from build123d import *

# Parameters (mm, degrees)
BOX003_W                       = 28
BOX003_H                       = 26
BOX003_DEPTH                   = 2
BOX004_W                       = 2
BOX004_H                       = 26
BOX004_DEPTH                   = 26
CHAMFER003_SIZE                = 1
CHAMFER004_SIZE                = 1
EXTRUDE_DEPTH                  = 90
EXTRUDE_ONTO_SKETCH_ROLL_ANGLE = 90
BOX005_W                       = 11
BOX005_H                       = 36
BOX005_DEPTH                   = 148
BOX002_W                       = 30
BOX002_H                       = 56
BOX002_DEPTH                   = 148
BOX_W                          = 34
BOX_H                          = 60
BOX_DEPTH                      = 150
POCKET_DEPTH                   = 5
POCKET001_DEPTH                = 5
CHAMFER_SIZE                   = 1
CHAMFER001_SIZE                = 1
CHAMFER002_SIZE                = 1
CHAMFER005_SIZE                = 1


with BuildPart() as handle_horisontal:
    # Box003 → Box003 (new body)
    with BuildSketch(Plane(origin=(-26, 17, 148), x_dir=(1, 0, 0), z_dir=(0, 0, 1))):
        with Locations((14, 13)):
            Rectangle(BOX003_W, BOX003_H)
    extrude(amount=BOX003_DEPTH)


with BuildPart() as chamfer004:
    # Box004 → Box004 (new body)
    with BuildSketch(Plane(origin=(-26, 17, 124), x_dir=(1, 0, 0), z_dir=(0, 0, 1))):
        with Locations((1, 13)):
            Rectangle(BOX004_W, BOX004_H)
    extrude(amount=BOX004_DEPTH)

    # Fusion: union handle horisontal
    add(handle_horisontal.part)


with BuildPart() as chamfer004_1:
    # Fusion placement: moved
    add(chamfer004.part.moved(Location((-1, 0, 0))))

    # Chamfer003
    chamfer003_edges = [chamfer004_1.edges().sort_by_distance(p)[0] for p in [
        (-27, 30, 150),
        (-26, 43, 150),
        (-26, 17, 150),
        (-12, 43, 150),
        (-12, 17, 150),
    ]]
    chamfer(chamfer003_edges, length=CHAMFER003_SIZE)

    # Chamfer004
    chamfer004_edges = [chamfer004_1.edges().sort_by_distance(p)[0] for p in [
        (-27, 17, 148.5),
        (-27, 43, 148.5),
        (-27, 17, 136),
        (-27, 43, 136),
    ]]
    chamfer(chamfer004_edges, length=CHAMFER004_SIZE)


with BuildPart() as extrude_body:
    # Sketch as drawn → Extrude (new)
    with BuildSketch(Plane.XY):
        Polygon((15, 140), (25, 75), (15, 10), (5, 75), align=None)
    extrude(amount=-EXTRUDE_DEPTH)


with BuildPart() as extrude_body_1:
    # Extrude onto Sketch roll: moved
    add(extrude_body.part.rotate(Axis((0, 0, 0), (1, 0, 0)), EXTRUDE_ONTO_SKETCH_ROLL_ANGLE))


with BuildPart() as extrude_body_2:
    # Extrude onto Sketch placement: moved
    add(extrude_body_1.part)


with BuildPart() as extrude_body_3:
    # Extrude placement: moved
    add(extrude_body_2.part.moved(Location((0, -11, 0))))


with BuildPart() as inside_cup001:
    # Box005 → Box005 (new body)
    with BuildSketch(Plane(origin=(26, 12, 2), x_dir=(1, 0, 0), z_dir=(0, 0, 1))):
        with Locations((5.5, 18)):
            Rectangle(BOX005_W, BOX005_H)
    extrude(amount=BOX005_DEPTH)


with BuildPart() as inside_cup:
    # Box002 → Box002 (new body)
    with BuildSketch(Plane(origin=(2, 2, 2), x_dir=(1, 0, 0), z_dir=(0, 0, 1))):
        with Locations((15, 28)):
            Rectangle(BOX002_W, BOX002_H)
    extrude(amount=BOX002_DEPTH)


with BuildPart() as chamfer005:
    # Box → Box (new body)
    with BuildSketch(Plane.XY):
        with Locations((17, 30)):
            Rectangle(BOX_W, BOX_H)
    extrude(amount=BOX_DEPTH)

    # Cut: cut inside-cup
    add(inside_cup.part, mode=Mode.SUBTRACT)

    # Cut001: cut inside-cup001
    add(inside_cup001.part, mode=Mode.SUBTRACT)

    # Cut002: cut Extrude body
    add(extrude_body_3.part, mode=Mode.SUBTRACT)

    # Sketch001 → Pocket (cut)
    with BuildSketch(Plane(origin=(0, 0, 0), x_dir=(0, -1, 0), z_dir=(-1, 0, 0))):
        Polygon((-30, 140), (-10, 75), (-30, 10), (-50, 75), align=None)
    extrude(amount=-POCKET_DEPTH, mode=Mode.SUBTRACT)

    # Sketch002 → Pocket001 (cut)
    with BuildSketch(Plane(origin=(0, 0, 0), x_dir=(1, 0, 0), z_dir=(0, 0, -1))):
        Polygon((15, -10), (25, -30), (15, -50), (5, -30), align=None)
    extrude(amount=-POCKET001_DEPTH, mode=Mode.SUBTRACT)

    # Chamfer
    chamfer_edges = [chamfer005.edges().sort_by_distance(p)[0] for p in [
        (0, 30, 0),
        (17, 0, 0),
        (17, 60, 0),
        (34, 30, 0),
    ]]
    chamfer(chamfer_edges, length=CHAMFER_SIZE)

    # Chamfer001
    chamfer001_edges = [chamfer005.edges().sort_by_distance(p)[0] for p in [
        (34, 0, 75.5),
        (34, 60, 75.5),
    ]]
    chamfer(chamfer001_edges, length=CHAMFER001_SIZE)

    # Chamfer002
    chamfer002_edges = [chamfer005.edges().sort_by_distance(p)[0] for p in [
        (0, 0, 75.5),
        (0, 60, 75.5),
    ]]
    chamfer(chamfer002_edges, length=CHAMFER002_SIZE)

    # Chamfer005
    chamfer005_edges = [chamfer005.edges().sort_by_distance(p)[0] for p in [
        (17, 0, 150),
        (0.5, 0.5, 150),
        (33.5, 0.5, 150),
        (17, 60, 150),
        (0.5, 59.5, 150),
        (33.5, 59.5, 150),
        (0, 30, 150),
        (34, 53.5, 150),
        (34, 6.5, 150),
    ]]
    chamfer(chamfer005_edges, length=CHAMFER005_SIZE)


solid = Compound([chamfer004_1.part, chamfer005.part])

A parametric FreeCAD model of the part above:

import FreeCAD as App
import Part
import Sketcher
from FreeCAD import Vector
Q = App.Units.Quantity


def edges_at(feature, points):
    """Names of the edges that pass closest to the given points."""
    edges = feature.Shape.Edges
    near = lambda p: min(range(len(edges)), key=lambda i: edges[i].distToShape(Part.Vertex(*p))[0])
    return sorted({f"Edge{near(p) + 1}" for p in points})

doc = App.newDocument("Part")
body = doc.addObject("PartDesign::Body", "Body")

sketch1 = body.newObject("Sketcher::SketchObject", "Sketch")
sketch1.AttachmentSupport = (doc.getObject("XY_Plane"), [""])
sketch1.MapMode = "FlatFace"
sketch1.AttachmentOffset = App.Placement(Vector(0, 0, 148), App.Rotation())
sketch1.addGeometry([
    Part.LineSegment(Vector(-26, 43, 0), Vector(-26, 17, 0)),
    Part.LineSegment(Vector(-26, 17, 0), Vector(2, 17, 0)),
    Part.LineSegment(Vector(2, 17, 0), Vector(2, 43, 0)),
    Part.LineSegment(Vector(2, 43, 0), Vector(-26, 43, 0)),
], False)
sketch1.addConstraint([
    Sketcher.Constraint("Coincident", 0, 2, 1, 1),
    Sketcher.Constraint("Coincident", 1, 2, 2, 1),
    Sketcher.Constraint("Coincident", 2, 2, 3, 1),
    Sketcher.Constraint("Coincident", 3, 2, 0, 1),
    Sketcher.Constraint("Vertical", 0),
    Sketcher.Constraint("Horizontal", 1),
    Sketcher.Constraint("Vertical", 2),
    Sketcher.Constraint("Horizontal", 3),
    Sketcher.Constraint("DistanceX", 1, 1, 1, 2, Q("28 mm")),
    Sketcher.Constraint("DistanceY", 0, 2, 0, 1, Q("26 mm")),
    Sketcher.Constraint("DistanceX", 0, 2, -1, 1, Q("26 mm")),
    Sketcher.Constraint("DistanceY", -1, 1, 0, 2, Q("17 mm")),
])
pad1 = body.newObject("PartDesign::Pad", "Pad")
pad1.Profile = sketch1
pad1.Length = 2
body2 = doc.addObject("PartDesign::Body", "Body001")

sketch2 = body2.newObject("Sketcher::SketchObject", "Sketch001")
sketch2.AttachmentSupport = (doc.getObject("XY_Plane001"), [""])
sketch2.MapMode = "FlatFace"
sketch2.AttachmentOffset = App.Placement(Vector(0, 0, 124), App.Rotation())
sketch2.addGeometry([
    Part.LineSegment(Vector(-26, 43, 0), Vector(-26, 17, 0)),
    Part.LineSegment(Vector(-26, 17, 0), Vector(-24, 17, 0)),
    Part.LineSegment(Vector(-24, 17, 0), Vector(-24, 43, 0)),
    Part.LineSegment(Vector(-24, 43, 0), Vector(-26, 43, 0)),
], False)
sketch2.addConstraint([
    Sketcher.Constraint("Coincident", 0, 2, 1, 1),
    Sketcher.Constraint("Coincident", 1, 2, 2, 1),
    Sketcher.Constraint("Coincident", 2, 2, 3, 1),
    Sketcher.Constraint("Coincident", 3, 2, 0, 1),
    Sketcher.Constraint("Vertical", 0),
    Sketcher.Constraint("Horizontal", 1),
    Sketcher.Constraint("Vertical", 2),
    Sketcher.Constraint("Horizontal", 3),
    Sketcher.Constraint("DistanceX", 1, 1, 1, 2, Q("2 mm")),
    Sketcher.Constraint("DistanceY", 0, 2, 0, 1, Q("26 mm")),
    Sketcher.Constraint("DistanceX", 0, 2, -1, 1, Q("26 mm")),
    Sketcher.Constraint("DistanceY", -1, 1, 0, 2, Q("17 mm")),
])
pad2 = body2.newObject("PartDesign::Pad", "Pad001")
pad2.Profile = sketch2
pad2.Length = 26
doc.recompute()

boolean = body2.newObject("PartDesign::Boolean", "Boolean")
boolean.Type = "Fuse"
boolean.addObjects([body])
body3 = doc.addObject("PartDesign::Body", "Body002")
doc.recompute()

body2.Placement = App.Placement(Vector(-1, 0, 0), App.Rotation(Vector(0, 0, 1), 0))
boolean2 = body3.newObject("PartDesign::Boolean", "Boolean001")
boolean2.Type = "Fuse"
boolean2.addObjects([body2])
doc.recompute()

chamfer = body3.newObject("PartDesign::Chamfer", "Chamfer")
chamfer.Base = (boolean2, edges_at(boolean2, [
    (-27, 30, 150),
    (-13, 43, 150),
    (-13, 17, 150),
    (-13, 43, 150),
    (-13, 17, 150),
]))
chamfer.Size = 1
doc.recompute()

chamfer2 = body3.newObject("PartDesign::Chamfer", "Chamfer001")
chamfer2.Base = (chamfer, edges_at(chamfer, [
    (-27, 17, 136.5),
    (-27, 43, 136.5),
    (-27, 17, 136.5),
    (-27, 43, 136.5),
]))
chamfer2.Size = 1
body4 = doc.addObject("PartDesign::Body", "Body003")

sketch3 = body4.newObject("Sketcher::SketchObject", "Sketch002")
sketch3.AttachmentSupport = (doc.getObject("XY_Plane003"), [""])
sketch3.MapMode = "FlatFace"
sketch3.addGeometry([
    Part.LineSegment(Vector(25, 75, 0), Vector(15, 140, 0)),
    Part.LineSegment(Vector(15, 140, 0), Vector(5, 75, 0)),
    Part.LineSegment(Vector(5, 75, 0), Vector(15, 10, 0)),
    Part.LineSegment(Vector(15, 10, 0), Vector(25, 75, 0)),
], False)
sketch3.addConstraint([
    Sketcher.Constraint("Coincident", 0, 2, 1, 1),
    Sketcher.Constraint("Coincident", 1, 2, 2, 1),
    Sketcher.Constraint("Coincident", 2, 2, 3, 1),
    Sketcher.Constraint("Coincident", 3, 2, 0, 1),
    Sketcher.Constraint("Parallel", 0, 2),
    Sketcher.Constraint("Parallel", 1, 3),
    Sketcher.Constraint("Horizontal", 1, 2, 3, 2),
    Sketcher.Constraint("Vertical", 0, 2, 2, 2),
    Sketcher.Constraint("DistanceX", -1, 1, 0, 2, Q("15 mm")),
    Sketcher.Constraint("DistanceY", -1, 1, 0, 2, Q("140 mm")),
    Sketcher.Constraint("DistanceX", -1, 1, 1, 2, Q("5 mm")),
    Sketcher.Constraint("DistanceY", -1, 1, 1, 2, Q("75 mm")),
])
pad3 = body4.newObject("PartDesign::Pad", "Pad002")
pad3.Profile = sketch3
pad3.Length = 90
pad3.Reversed = True
body5 = doc.addObject("PartDesign::Body", "Body004")
doc.recompute()

body4.Placement = App.Placement(Vector(0, 0, 0), App.Rotation(Vector(1, 0, 0), 90))
boolean3 = body5.newObject("PartDesign::Boolean", "Boolean002")
boolean3.Type = "Fuse"
boolean3.addObjects([body4])
body6 = doc.addObject("PartDesign::Body", "Body005")
doc.recompute()

body5.Placement = App.Placement(Vector(0, -11, 0), App.Rotation(Vector(0, 0, 1), 0))
boolean4 = body6.newObject("PartDesign::Boolean", "Boolean003")
boolean4.Type = "Fuse"
boolean4.addObjects([body5])
body7 = doc.addObject("PartDesign::Body", "Body006")

sketch4 = body7.newObject("Sketcher::SketchObject", "Sketch003")
sketch4.AttachmentSupport = (doc.getObject("XY_Plane006"), [""])
sketch4.MapMode = "FlatFace"
sketch4.AttachmentOffset = App.Placement(Vector(0, 0, 2), App.Rotation())
sketch4.addGeometry([
    Part.LineSegment(Vector(26, 48, 0), Vector(26, 12, 0)),
    Part.LineSegment(Vector(26, 12, 0), Vector(37, 12, 0)),
    Part.LineSegment(Vector(37, 12, 0), Vector(37, 48, 0)),
    Part.LineSegment(Vector(37, 48, 0), Vector(26, 48, 0)),
], False)
sketch4.addConstraint([
    Sketcher.Constraint("Coincident", 0, 2, 1, 1),
    Sketcher.Constraint("Coincident", 1, 2, 2, 1),
    Sketcher.Constraint("Coincident", 2, 2, 3, 1),
    Sketcher.Constraint("Coincident", 3, 2, 0, 1),
    Sketcher.Constraint("Vertical", 0),
    Sketcher.Constraint("Horizontal", 1),
    Sketcher.Constraint("Vertical", 2),
    Sketcher.Constraint("Horizontal", 3),
    Sketcher.Constraint("DistanceX", 1, 1, 1, 2, Q("11 mm")),
    Sketcher.Constraint("DistanceY", 0, 2, 0, 1, Q("36 mm")),
    Sketcher.Constraint("DistanceX", -1, 1, 0, 2, Q("26 mm")),
    Sketcher.Constraint("DistanceY", -1, 1, 0, 2, Q("12 mm")),
])
pad4 = body7.newObject("PartDesign::Pad", "Pad003")
pad4.Profile = sketch4
pad4.Length = 148
body8 = doc.addObject("PartDesign::Body", "Body007")

sketch5 = body8.newObject("Sketcher::SketchObject", "Sketch004")
sketch5.AttachmentSupport = (doc.getObject("XY_Plane007"), [""])
sketch5.MapMode = "FlatFace"
sketch5.AttachmentOffset = App.Placement(Vector(0, 0, 2), App.Rotation())
sketch5.addGeometry([
    Part.LineSegment(Vector(2, 58, 0), Vector(2, 2, 0)),
    Part.LineSegment(Vector(2, 2, 0), Vector(32, 2, 0)),
    Part.LineSegment(Vector(32, 2, 0), Vector(32, 58, 0)),
    Part.LineSegment(Vector(32, 58, 0), Vector(2, 58, 0)),
], False)
sketch5.addConstraint([
    Sketcher.Constraint("Coincident", 0, 2, 1, 1),
    Sketcher.Constraint("Coincident", 1, 2, 2, 1),
    Sketcher.Constraint("Coincident", 2, 2, 3, 1),
    Sketcher.Constraint("Coincident", 3, 2, 0, 1),
    Sketcher.Constraint("Vertical", 0),
    Sketcher.Constraint("Horizontal", 1),
    Sketcher.Constraint("Vertical", 2),
    Sketcher.Constraint("Horizontal", 3),
    Sketcher.Constraint("DistanceX", 1, 1, 1, 2, Q("30 mm")),
    Sketcher.Constraint("DistanceY", 0, 2, 0, 1, Q("56 mm")),
    Sketcher.Constraint("DistanceX", -1, 1, 0, 2, Q("2 mm")),
    Sketcher.Constraint("DistanceY", -1, 1, 0, 2, Q("2 mm")),
])
pad5 = body8.newObject("PartDesign::Pad", "Pad004")
pad5.Profile = sketch5
pad5.Length = 148
body9 = doc.addObject("PartDesign::Body", "Body008")

sketch6 = body9.newObject("Sketcher::SketchObject", "Sketch005")
sketch6.AttachmentSupport = (doc.getObject("XY_Plane008"), [""])
sketch6.MapMode = "FlatFace"
sketch6.addGeometry([
    Part.LineSegment(Vector(0, 60, 0), Vector(0, 0, 0)),
    Part.LineSegment(Vector(0, 0, 0), Vector(34, 0, 0)),
    Part.LineSegment(Vector(34, 0, 0), Vector(34, 60, 0)),
    Part.LineSegment(Vector(34, 60, 0), Vector(0, 60, 0)),
], False)
sketch6.addConstraint([
    Sketcher.Constraint("Coincident", 0, 2, 1, 1),
    Sketcher.Constraint("Coincident", 1, 2, 2, 1),
    Sketcher.Constraint("Coincident", 2, 2, 3, 1),
    Sketcher.Constraint("Coincident", 3, 2, 0, 1),
    Sketcher.Constraint("Vertical", 0),
    Sketcher.Constraint("Horizontal", 1),
    Sketcher.Constraint("Vertical", 2),
    Sketcher.Constraint("Horizontal", 3),
    Sketcher.Constraint("Coincident", 0, 2, -1, 1),
    Sketcher.Constraint("DistanceX", 1, 1, 1, 2, Q("34 mm")),
    Sketcher.Constraint("DistanceY", 0, 2, 0, 1, Q("60 mm")),
])
pad6 = body9.newObject("PartDesign::Pad", "Pad005")
pad6.Profile = sketch6
pad6.Length = 150
doc.recompute()

boolean5 = body9.newObject("PartDesign::Boolean", "Boolean004")
boolean5.Type = "Cut"
boolean5.addObjects([body8])
doc.recompute()

boolean6 = body9.newObject("PartDesign::Boolean", "Boolean005")
boolean6.Type = "Cut"
boolean6.addObjects([body7])
doc.recompute()

boolean7 = body9.newObject("PartDesign::Boolean", "Boolean006")
boolean7.Type = "Cut"
boolean7.addObjects([body6])

sketch7 = body9.newObject("Sketcher::SketchObject", "Sketch006")
sketch7.AttachmentSupport = (doc.getObject("YZ_Plane008"), [""])
sketch7.MapMode = "FlatFace"
sketch7.addGeometry([
    Part.LineSegment(Vector(10, 75, 0), Vector(30, 140, 0)),
    Part.LineSegment(Vector(30, 140, 0), Vector(50, 75, 0)),
    Part.LineSegment(Vector(50, 75, 0), Vector(30, 10, 0)),
    Part.LineSegment(Vector(30, 10, 0), Vector(10, 75, 0)),
], False)
sketch7.addConstraint([
    Sketcher.Constraint("Coincident", 0, 2, 1, 1),
    Sketcher.Constraint("Coincident", 1, 2, 2, 1),
    Sketcher.Constraint("Coincident", 2, 2, 3, 1),
    Sketcher.Constraint("Coincident", 3, 2, 0, 1),
    Sketcher.Constraint("Parallel", 0, 2),
    Sketcher.Constraint("Parallel", 1, 3),
    Sketcher.Constraint("Horizontal", 1, 2, 3, 2),
    Sketcher.Constraint("Vertical", 0, 2, 2, 2),
    Sketcher.Constraint("DistanceX", -1, 1, 0, 2, Q("30 mm")),
    Sketcher.Constraint("DistanceY", -1, 1, 0, 2, Q("140 mm")),
    Sketcher.Constraint("DistanceX", -1, 1, 1, 2, Q("50 mm")),
    Sketcher.Constraint("DistanceY", -1, 1, 1, 2, Q("75 mm")),
])
pocket1 = body9.newObject("PartDesign::Pocket", "Pocket")
pocket1.Profile = sketch7
pocket1.Length = 5
pocket1.Reversed = True

sketch8 = body9.newObject("Sketcher::SketchObject", "Sketch007")
sketch8.AttachmentSupport = (doc.getObject("XY_Plane008"), [""])
sketch8.MapMode = "FlatFace"
sketch8.addGeometry([
    Part.LineSegment(Vector(25, 30, 0), Vector(15, 10, 0)),
    Part.LineSegment(Vector(15, 10, 0), Vector(5, 30, 0)),
    Part.LineSegment(Vector(5, 30, 0), Vector(15, 50, 0)),
    Part.LineSegment(Vector(15, 50, 0), Vector(25, 30, 0)),
], False)
sketch8.addConstraint([
    Sketcher.Constraint("Coincident", 0, 2, 1, 1),
    Sketcher.Constraint("Coincident", 1, 2, 2, 1),
    Sketcher.Constraint("Coincident", 2, 2, 3, 1),
    Sketcher.Constraint("Coincident", 3, 2, 0, 1),
    Sketcher.Constraint("Parallel", 0, 2),
    Sketcher.Constraint("Parallel", 1, 3),
    Sketcher.Constraint("Horizontal", 1, 2, 3, 2),
    Sketcher.Constraint("Vertical", 0, 2, 2, 2),
    Sketcher.Constraint("DistanceX", -1, 1, 0, 2, Q("15 mm")),
    Sketcher.Constraint("DistanceY", -1, 1, 0, 2, Q("10 mm")),
    Sketcher.Constraint("DistanceX", -1, 1, 1, 2, Q("5 mm")),
    Sketcher.Constraint("DistanceY", -1, 1, 1, 2, Q("30 mm")),
])
pocket2 = body9.newObject("PartDesign::Pocket", "Pocket001")
pocket2.Profile = sketch8
pocket2.Length = 5
pocket2.Reversed = True
doc.recompute()

chamfer3 = body9.newObject("PartDesign::Chamfer", "Chamfer002")
chamfer3.Base = (pocket2, edges_at(pocket2, [
    (0, 30, 0),
    (17, 0, 0),
    (17, 60, 0),
    (34, 30, 0),
]))
chamfer3.Size = 1
doc.recompute()

chamfer4 = body9.newObject("PartDesign::Chamfer", "Chamfer003")
chamfer4.Base = (chamfer3, edges_at(chamfer3, [(34, 0, 75.5), (34, 60, 75.5)]))
chamfer4.Size = 1
doc.recompute()

chamfer5 = body9.newObject("PartDesign::Chamfer", "Chamfer004")
chamfer5.Base = (chamfer4, edges_at(chamfer4, [(0, 0, 75.5), (0, 60, 75.5)]))
chamfer5.Size = 1
doc.recompute()

chamfer6 = body9.newObject("PartDesign::Chamfer", "Chamfer005")
chamfer6.Base = (chamfer5, edges_at(chamfer5, [
    (17, 0, 150),
    (0.5, 0.5, 150),
    (33.5, 0.5, 150),
    (17, 60, 150),
    (0.5, 59.5, 150),
    (33.5, 59.5, 150),
    (0, 30, 150),
    (34, 53.5, 150),
    (34, 6.5, 150),
]))
chamfer6.Size = 1

doc.recompute()
